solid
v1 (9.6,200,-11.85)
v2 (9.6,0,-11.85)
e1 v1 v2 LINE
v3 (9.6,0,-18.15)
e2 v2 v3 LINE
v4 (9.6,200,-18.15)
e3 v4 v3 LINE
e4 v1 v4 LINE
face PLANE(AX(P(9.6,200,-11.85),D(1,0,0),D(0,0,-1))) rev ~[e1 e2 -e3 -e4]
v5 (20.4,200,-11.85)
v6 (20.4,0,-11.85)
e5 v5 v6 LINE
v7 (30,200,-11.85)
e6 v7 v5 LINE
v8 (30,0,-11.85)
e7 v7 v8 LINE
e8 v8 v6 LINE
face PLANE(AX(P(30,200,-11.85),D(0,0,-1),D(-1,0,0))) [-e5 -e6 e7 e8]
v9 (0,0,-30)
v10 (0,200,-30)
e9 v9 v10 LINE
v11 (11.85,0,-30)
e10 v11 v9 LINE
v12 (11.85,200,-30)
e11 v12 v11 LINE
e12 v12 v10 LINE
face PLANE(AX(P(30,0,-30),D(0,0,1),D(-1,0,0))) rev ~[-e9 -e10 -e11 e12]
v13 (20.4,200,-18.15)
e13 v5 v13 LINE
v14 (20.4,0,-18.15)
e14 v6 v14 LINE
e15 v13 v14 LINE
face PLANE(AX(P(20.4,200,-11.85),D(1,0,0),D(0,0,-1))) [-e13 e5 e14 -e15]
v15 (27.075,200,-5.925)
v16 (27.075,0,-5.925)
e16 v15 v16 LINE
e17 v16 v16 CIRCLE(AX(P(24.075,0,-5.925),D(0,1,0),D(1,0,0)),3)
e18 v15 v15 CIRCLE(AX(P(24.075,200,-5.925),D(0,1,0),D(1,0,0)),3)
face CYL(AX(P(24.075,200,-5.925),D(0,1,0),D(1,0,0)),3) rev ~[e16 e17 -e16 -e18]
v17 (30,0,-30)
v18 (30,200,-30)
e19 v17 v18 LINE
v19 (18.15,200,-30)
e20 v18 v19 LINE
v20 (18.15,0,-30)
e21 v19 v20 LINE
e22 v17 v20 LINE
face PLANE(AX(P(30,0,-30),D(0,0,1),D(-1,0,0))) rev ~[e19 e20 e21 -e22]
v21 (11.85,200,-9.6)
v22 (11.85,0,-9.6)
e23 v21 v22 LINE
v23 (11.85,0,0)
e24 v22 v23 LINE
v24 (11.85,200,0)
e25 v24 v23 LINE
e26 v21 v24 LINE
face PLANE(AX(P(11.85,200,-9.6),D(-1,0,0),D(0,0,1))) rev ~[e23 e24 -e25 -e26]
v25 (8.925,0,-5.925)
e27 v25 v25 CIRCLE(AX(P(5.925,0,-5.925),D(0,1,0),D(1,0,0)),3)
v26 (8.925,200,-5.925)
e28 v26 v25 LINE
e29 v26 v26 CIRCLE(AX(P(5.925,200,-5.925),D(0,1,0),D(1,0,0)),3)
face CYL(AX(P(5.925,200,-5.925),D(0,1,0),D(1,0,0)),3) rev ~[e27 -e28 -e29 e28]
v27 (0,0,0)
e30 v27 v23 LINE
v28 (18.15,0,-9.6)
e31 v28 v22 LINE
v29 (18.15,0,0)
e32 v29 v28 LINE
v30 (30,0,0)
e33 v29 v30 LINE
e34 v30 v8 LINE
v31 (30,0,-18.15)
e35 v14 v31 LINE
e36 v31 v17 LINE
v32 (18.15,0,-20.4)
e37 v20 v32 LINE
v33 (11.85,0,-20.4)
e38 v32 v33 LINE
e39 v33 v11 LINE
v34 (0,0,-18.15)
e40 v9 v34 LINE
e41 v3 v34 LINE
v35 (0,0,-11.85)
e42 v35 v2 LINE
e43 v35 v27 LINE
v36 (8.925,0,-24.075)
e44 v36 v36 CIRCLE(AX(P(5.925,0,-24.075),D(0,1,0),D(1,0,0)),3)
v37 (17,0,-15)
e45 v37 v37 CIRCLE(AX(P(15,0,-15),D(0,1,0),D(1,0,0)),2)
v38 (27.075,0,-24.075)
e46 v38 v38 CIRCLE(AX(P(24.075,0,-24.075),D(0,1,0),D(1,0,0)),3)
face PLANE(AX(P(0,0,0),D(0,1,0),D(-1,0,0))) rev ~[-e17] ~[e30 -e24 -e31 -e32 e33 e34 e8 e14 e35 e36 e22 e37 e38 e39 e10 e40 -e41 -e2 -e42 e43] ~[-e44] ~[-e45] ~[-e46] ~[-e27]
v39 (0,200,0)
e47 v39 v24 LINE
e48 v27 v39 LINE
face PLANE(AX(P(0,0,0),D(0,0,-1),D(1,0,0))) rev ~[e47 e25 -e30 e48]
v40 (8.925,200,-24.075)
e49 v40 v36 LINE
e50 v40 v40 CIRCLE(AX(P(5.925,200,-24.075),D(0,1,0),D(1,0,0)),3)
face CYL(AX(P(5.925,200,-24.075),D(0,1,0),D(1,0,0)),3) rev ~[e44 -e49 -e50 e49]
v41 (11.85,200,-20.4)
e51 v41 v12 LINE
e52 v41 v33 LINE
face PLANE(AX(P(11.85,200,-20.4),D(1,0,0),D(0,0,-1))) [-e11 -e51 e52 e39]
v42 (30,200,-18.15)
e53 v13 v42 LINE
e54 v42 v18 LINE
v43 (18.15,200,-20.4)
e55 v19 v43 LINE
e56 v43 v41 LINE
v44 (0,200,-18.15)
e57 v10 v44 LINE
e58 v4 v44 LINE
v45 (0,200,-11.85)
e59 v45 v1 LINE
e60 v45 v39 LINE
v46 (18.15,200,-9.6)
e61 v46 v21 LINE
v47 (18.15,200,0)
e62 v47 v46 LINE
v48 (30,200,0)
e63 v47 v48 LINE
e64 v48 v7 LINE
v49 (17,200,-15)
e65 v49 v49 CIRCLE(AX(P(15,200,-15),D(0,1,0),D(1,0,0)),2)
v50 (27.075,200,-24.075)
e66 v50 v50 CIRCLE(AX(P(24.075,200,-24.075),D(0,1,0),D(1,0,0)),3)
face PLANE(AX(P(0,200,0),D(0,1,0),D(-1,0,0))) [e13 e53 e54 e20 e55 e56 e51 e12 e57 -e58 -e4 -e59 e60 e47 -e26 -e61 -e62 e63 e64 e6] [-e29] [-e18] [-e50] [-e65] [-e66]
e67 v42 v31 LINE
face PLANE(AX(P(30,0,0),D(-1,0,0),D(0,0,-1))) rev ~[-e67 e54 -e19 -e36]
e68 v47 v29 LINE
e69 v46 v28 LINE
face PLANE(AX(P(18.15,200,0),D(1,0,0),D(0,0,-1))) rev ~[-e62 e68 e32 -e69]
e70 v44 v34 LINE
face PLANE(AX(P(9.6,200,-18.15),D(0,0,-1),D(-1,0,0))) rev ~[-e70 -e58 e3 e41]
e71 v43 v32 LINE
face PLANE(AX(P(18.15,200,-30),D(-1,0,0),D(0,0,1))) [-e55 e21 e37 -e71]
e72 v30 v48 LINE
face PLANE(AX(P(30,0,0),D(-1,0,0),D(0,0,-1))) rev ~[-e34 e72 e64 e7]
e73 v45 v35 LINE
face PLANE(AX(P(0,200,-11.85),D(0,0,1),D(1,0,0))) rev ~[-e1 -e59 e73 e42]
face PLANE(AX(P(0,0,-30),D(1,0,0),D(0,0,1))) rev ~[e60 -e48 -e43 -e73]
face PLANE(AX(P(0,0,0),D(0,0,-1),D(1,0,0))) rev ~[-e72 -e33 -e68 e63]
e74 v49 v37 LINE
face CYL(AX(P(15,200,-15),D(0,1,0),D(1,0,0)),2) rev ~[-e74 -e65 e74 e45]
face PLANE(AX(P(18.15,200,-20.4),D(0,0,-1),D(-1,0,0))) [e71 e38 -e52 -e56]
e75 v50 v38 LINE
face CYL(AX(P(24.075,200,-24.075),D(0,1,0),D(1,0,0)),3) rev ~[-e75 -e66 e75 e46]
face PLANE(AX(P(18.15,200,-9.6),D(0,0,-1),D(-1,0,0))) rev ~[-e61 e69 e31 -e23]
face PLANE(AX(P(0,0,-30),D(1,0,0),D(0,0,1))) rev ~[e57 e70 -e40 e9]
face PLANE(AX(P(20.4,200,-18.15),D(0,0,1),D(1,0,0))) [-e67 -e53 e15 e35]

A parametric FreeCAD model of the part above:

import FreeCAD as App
import Part
import Sketcher

V = App.Vector

doc = App.newDocument("Part")
body = doc.addObject("PartDesign::Body", "Body")

sketch1 = body.newObject("Sketcher::SketchObject", "Sketch")
sketch1.AttachmentSupport = (doc.getObject("XZ_Plane"), [""])
sketch1.MapMode = "FlatFace"
sketch1.addGeometry([
    Part.LineSegment(V(0, -30, 0), V(0, 0, 0)),
    Part.LineSegment(V(0, 0, 0), V(30, 0, 0)),
    Part.LineSegment(V(30, 0, 0), V(30, -30, 0)),
    Part.LineSegment(V(30, -30, 0), V(0, -30, 0)),
], False)
sketch1.addConstraint([
    Sketcher.Constraint("Coincident", 0, 2, 1, 1),
    Sketcher.Constraint("Coincident", 1, 2, 2, 1),
    Sketcher.Constraint("Coincident", 2, 2, 3, 1),
    Sketcher.Constraint("Coincident", 3, 2, 0, 1),
    Sketcher.Constraint("Vertical", 0),
    Sketcher.Constraint("Horizontal", 1),
    Sketcher.Constraint("Vertical", 2),
    Sketcher.Constraint("Horizontal", 3),
    Sketcher.Constraint("Coincident", 0, 2, -1, 1),
    Sketcher.Constraint("Equal", 3, 0),
    Sketcher.Constraint("DistanceX", 1, 1, 1, 2, 30.0),
])
pad1 = body.newObject("PartDesign::Pad", "Pad")
pad1.Profile = sketch1
pad1.Length = 200
pad1.Reversed = True

sketch2 = body.newObject("Sketcher::SketchObject", "Sketch001")
sketch2.AttachmentSupport = (doc.getObject("XZ_Plane"), [""])
sketch2.MapMode = "FlatFace"
sketch2.AttachmentOffset = App.Placement(V(0, 0, -200), App.Rotation())
sketch2.addGeometry([
    Part.LineSegment(V(0, -18.15, 0), V(0, -11.85, 0)),
    Part.LineSegment(V(0, -11.85, 0), V(9.6, -11.85, 0)),
    Part.LineSegment(V(9.6, -11.85, 0), V(9.6, -18.15, 0)),
    Part.LineSegment(V(9.6, -18.15, 0), V(0, -18.15, 0)),
    Part.LineSegment(V(11.85, -9.6, 0), V(11.85, 0, 0)),
    Part.LineSegment(V(11.85, 0, 0), V(18.15, 0, 0)),
    Part.LineSegment(V(18.15, 0, 0), V(18.15, -9.6, 0)),
    Part.LineSegment(V(18.15, -9.6, 0), V(11.85, -9.6, 0)),
    Part.LineSegment(V(18.15, -30, 0), V(11.85, -30, 0)),
    Part.LineSegment(V(11.85, -30, 0), V(11.85, -20.4, 0)),
    Part.LineSegment(V(11.85, -20.4, 0), V(18.15, -20.4, 0)),
    Part.LineSegment(V(18.15, -20.4, 0), V(18.15, -30, 0)),
    Part.LineSegment(V(20.4, -11.85, 0), V(30, -11.85, 0)),
    Part.LineSegment(V(30, -11.85, 0), V(30, -18.15, 0)),
    Part.LineSegment(V(30, -18.15, 0), V(20.4, -18.15, 0)),
    Part.LineSegment(V(20.4, -18.15, 0), V(20.4, -11.85, 0)),
], False)
sketch2.addConstraint([
    Sketcher.Constraint("Coincident", 0, 2, 1, 1),
    Sketcher.Constraint("Coincident", 1, 2, 2, 1),
    Sketcher.Constraint("Coincident", 2, 2, 3, 1),
    Sketcher.Constraint("Coincident", 3, 2, 0, 1),
    Sketcher.Constraint("Coincident", 4, 2, 5, 1),
    Sketcher.Constraint("Coincident", 5, 2, 6, 1),
    Sketcher.Constraint("Coincident", 6, 2, 7, 1),
    Sketcher.Constraint("Coincident", 7, 2, 4, 1),
    Sketcher.Constraint("Coincident", 8, 2, 9, 1),
    Sketcher.Constraint("Coincident", 9, 2, 10, 1),
    Sketcher.Constraint("Coincident", 10, 2, 11, 1),
    Sketcher.Constraint("Coincident", 11, 2, 8, 1),
    Sketcher.Constraint("Coincident", 12, 2, 13, 1),
    Sketcher.Constraint("Coincident", 13, 2, 14, 1),
    Sketcher.Constraint("Coincident", 14, 2, 15, 1),
    Sketcher.Constraint("Coincident", 15, 2, 12, 1),
    Sketcher.Constraint("Vertical", 0),
    Sketcher.Constraint("Horizontal", 1),
    Sketcher.Constraint("Vertical", 2),
    Sketcher.Constraint("Horizontal", 3),
    Sketcher.Constraint("Vertical", 4),
    Sketcher.Constraint("Horizontal", 5),
    Sketcher.Constraint("Vertical", 6),
    Sketcher.Constraint("Horizontal", 7),
    Sketcher.Constraint("Horizontal", 8),
    Sketcher.Constraint("Vertical", 9),
    Sketcher.Constraint("Horizontal", 10),
    Sketcher.Constraint("Vertical", 11),
    Sketcher.Constraint("Horizontal", 12),
    Sketcher.Constraint("Vertical", 13),
    Sketcher.Constraint("Horizontal", 14),
    Sketcher.Constraint("Vertical", 15),
    Sketcher.Constraint("PointOnObject", 0, 2, -2),
    Sketcher.Constraint("PointOnObject", 4, 2, -1),
    Sketcher.Constraint("Horizontal", 1, 2, 12, 2),
    Sketcher.Constraint("Horizontal", 3, 2, 13, 2),
    Sketcher.Constraint("Vertical", 7, 2, 8, 2),
    Sketcher.Constraint("Vertical", 6, 2, 10, 2),
    Sketcher.Constraint("Equal", 3, 12),
    Sketcher.Constraint("Equal", 10, 0),
    Sketcher.Constraint("Equal", 14, 4),
    Sketcher.Constraint("Equal", 6, 9),
    Sketcher.Constraint("DistanceX", 1, 1, 1, 2, 9.6),
    Sketcher.Constraint("DistanceX", 5, 1, 5, 2, 6.3),
    Sketcher.Constraint("DistanceY", 8, 2, -1, 1, 30.0),
    Sketcher.Constraint("DistanceX", -1, 1, 12, 2, 30.0),
    Sketcher.Constraint("DistanceY", 0, 2, -1, 1, 11.85),
    Sketcher.Constraint("DistanceX", -1, 1, 4, 2, 11.85),
])
pocket1 = body.newObject("PartDesign::Pocket", "Pocket")
pocket1.Profile = sketch2
pocket1.Length = 500
pocket1.Reversed = True

sketch3 = body.newObject("Sketcher::SketchObject", "Sketch002")
sketch3.AttachmentSupport = (doc.getObject("XZ_Plane"), [""])
sketch3.MapMode = "FlatFace"
sketch3.AttachmentOffset = App.Placement(V(0, 0, -200), App.Rotation())
sketch3.addGeometry([
    Part.Circle(V(5.925, -5.925, 0), V(0, 0, 1), 3),
    Part.Circle(V(5.925, -24.075, 0), V(0, 0, 1), 3),
    Part.Circle(V(24.075, -24.075, 0), V(0, 0, 1), 3),
    Part.Circle(V(24.075, -5.925, 0), V(0, 0, 1), 3),
    Part.Circle(V(15, -15, 0), V(0, 0, 1), 2),
], False)
sketch3.addConstraint([
    Sketcher.Constraint("Equal", 0, 1),
    Sketcher.Constraint("Equal", 1, 2),
    Sketcher.Constraint("Equal", 2, 3),
    Sketcher.Constraint("Horizontal", 1, 3, 2, 3),
    Sketcher.Constraint("Horizontal", 0, 3, 3, 3),
    Sketcher.Constraint("Vertical", 0, 3, 1, 3),
    Sketcher.Constraint("Vertical", 2, 3, 3, 3),
    Sketcher.Constraint("Diameter", 0, 6.0),
    Sketcher.Constraint("Diameter", 4, 4.0),
    Sketcher.Constraint("DistanceX", -1, 1, 0, 3, 5.925),
    Sketcher.Constraint("DistanceY", 0, 3, -1, 1, 5.925),
    Sketcher.Constraint("DistanceX", -1, 1, 4, 3, 15.0),
    Sketcher.Constraint("DistanceY", 4, 3, -1, 1, 15.0),
    Sketcher.Constraint("DistanceY", 1, 3, 0, 3, 18.15),
    Sketcher.Constraint("DistanceX", 1, 3, 2, 3, 18.15),
])
pocket2 = body.newObject("PartDesign::Pocket", "Pocket001")
pocket2.Profile = sketch3
pocket2.Length = 200
pocket2.Reversed = True

doc.recompute()
